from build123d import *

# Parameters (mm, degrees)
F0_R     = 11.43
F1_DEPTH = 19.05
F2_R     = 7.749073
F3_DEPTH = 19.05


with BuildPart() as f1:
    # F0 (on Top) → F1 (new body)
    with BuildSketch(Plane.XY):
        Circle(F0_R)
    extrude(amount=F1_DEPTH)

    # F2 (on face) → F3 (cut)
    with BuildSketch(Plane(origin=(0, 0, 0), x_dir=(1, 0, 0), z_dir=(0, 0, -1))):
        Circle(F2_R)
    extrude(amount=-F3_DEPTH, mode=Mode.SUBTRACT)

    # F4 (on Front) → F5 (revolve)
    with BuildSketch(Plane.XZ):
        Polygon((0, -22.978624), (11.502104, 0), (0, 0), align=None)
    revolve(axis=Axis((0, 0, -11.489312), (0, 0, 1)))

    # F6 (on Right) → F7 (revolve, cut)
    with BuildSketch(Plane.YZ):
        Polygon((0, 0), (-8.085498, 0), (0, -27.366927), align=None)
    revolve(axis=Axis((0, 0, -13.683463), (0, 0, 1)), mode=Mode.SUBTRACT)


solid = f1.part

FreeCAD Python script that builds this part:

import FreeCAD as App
import Part
import Sketcher
from FreeCAD import Vector
Q = App.Units.Quantity

doc = App.newDocument("Part")
params = doc.addObject("Spreadsheet::Sheet", "Params")
for row, (alias, value) in enumerate([
    ("sketch1_diameter", "0.9 in"),
    ("pad1_length", "0.75 in"),
    ("pocket1_length", "0.75 in"),
    ("revolution_angle", "360 deg"),
    ("groove_angle", "360 deg"),
], start=1):
    params.set(f"A{row}", alias)
    params.set(f"B{row}", "=" + value)
    params.setAlias(f"B{row}", alias)

body = doc.addObject("PartDesign::Body", "Body")

# Sketch on XY plane
sketch1 = body.newObject("Sketcher::SketchObject", "Sketch")
sketch1.AttachmentSupport = (doc.getObject("XY_Plane"), [""])
sketch1.MapMode = "FlatFace"
sketch1.addGeometry(Part.Circle(Vector(0, 0, 0), Vector(0, 0, 1), 11.43), False)
sketch1.addConstraint([
    Sketcher.Constraint("Coincident", 0, 3, -1, 1),
    Sketcher.Constraint("Diameter", 0, Q("0.9 in")),
])
sketch1.setExpression("Constraints[1]", "Params.sketch1_diameter")
pad1 = body.newObject("PartDesign::Pad", "Pad")
pad1.Profile = sketch1
pad1.setExpression("Length", "Params.pad1_length")

# Sketch on XY plane
sketch2 = body.newObject("Sketcher::SketchObject", "Sketch001")
sketch2.AttachmentSupport = (doc.getObject("XY_Plane"), [""])
sketch2.MapMode = "FlatFace"
sketch2.addGeometry(Part.Circle(Vector(0, 0, 0), Vector(0, 0, 1), 7.749073), False)
sketch2.addConstraint([
    Sketcher.Constraint("Coincident", 0, 3, -1, 1),
    Sketcher.Constraint("Diameter", 0, 15.498146),
])
pocket1 = body.newObject("PartDesign::Pocket", "Pocket")
pocket1.Profile = sketch2
pocket1.setExpression("Length", "Params.pocket1_length")
pocket1.Reversed = True

# Sketch on XZ plane
sketch3 = body.newObject("Sketcher::SketchObject", "Sketch002")
sketch3.AttachmentSupport = (doc.getObject("XZ_Plane"), [""])
sketch3.MapMode = "FlatFace"
sketch3.addGeometry([
    Part.LineSegment(Vector(0, -22.978624, 0), Vector(11.502104, 0, 0)),
    Part.LineSegment(Vector(11.502104, 0, 0), Vector(0, 0, 0)),
    Part.LineSegment(Vector(0, 0, 0), Vector(0, -22.978624, 0)),
], False)
sketch3.addConstraint([
    Sketcher.Constraint("Coincident", 0, 2, 1, 1),
    Sketcher.Constraint("Coincident", 1, 2, 2, 1),
    Sketcher.Constraint("Coincident", 2, 2, 0, 1),
    Sketcher.Constraint("Horizontal", 1),
    Sketcher.Constraint("Vertical", 2),
    Sketcher.Constraint("Coincident", 1, 2, -1, 1),
    Sketcher.Constraint("DistanceX", 1, 2, 1, 1, 11.502104),
    Sketcher.Constraint("DistanceY", 2, 2, 2, 1, 22.978624),
])
revolution = body.newObject("PartDesign::Revolution", "Revolution")
revolution.Profile = sketch3
revolution.ReferenceAxis = (sketch3, ["V_Axis"])
revolution.setExpression("Angle", "Params.revolution_angle")

# Sketch on YZ plane
sketch4 = body.newObject("Sketcher::SketchObject", "Sketch003")
sketch4.AttachmentSupport = (doc.getObject("YZ_Plane"), [""])
sketch4.MapMode = "FlatFace"
sketch4.addGeometry([
    Part.LineSegment(Vector(0, 0, 0), Vector(-8.085498, 0, 0)),
    Part.LineSegment(Vector(-8.085498, 0, 0), Vector(0, -27.366927, 0)),
    Part.LineSegment(Vector(0, -27.366927, 0), Vector(0, 0, 0)),
], False)
sketch4.addConstraint([
    Sketcher.Constraint("Coincident", 0, 2, 1, 1),
    Sketcher.Constraint("Coincident", 1, 2, 2, 1),
    Sketcher.Constraint("Coincident", 2, 2, 0, 1),
    Sketcher.Constraint("Horizontal", 0),
    Sketcher.Constraint("Vertical", 2),
    Sketcher.Constraint("Coincident", 2, 2, -1, 1),
    Sketcher.Constraint("DistanceX", 0, 2, 0, 1, 8.085498),
    Sketcher.Constraint("DistanceY", 2, 1, 2, 2, 27.366927),
])
groove = body.newObject("PartDesign::Groove", "Groove")
groove.Profile = sketch4
groove.ReferenceAxis = (sketch4, ["V_Axis"])
groove.setExpression("Angle", "Params.groove_angle")

doc.recompute()
